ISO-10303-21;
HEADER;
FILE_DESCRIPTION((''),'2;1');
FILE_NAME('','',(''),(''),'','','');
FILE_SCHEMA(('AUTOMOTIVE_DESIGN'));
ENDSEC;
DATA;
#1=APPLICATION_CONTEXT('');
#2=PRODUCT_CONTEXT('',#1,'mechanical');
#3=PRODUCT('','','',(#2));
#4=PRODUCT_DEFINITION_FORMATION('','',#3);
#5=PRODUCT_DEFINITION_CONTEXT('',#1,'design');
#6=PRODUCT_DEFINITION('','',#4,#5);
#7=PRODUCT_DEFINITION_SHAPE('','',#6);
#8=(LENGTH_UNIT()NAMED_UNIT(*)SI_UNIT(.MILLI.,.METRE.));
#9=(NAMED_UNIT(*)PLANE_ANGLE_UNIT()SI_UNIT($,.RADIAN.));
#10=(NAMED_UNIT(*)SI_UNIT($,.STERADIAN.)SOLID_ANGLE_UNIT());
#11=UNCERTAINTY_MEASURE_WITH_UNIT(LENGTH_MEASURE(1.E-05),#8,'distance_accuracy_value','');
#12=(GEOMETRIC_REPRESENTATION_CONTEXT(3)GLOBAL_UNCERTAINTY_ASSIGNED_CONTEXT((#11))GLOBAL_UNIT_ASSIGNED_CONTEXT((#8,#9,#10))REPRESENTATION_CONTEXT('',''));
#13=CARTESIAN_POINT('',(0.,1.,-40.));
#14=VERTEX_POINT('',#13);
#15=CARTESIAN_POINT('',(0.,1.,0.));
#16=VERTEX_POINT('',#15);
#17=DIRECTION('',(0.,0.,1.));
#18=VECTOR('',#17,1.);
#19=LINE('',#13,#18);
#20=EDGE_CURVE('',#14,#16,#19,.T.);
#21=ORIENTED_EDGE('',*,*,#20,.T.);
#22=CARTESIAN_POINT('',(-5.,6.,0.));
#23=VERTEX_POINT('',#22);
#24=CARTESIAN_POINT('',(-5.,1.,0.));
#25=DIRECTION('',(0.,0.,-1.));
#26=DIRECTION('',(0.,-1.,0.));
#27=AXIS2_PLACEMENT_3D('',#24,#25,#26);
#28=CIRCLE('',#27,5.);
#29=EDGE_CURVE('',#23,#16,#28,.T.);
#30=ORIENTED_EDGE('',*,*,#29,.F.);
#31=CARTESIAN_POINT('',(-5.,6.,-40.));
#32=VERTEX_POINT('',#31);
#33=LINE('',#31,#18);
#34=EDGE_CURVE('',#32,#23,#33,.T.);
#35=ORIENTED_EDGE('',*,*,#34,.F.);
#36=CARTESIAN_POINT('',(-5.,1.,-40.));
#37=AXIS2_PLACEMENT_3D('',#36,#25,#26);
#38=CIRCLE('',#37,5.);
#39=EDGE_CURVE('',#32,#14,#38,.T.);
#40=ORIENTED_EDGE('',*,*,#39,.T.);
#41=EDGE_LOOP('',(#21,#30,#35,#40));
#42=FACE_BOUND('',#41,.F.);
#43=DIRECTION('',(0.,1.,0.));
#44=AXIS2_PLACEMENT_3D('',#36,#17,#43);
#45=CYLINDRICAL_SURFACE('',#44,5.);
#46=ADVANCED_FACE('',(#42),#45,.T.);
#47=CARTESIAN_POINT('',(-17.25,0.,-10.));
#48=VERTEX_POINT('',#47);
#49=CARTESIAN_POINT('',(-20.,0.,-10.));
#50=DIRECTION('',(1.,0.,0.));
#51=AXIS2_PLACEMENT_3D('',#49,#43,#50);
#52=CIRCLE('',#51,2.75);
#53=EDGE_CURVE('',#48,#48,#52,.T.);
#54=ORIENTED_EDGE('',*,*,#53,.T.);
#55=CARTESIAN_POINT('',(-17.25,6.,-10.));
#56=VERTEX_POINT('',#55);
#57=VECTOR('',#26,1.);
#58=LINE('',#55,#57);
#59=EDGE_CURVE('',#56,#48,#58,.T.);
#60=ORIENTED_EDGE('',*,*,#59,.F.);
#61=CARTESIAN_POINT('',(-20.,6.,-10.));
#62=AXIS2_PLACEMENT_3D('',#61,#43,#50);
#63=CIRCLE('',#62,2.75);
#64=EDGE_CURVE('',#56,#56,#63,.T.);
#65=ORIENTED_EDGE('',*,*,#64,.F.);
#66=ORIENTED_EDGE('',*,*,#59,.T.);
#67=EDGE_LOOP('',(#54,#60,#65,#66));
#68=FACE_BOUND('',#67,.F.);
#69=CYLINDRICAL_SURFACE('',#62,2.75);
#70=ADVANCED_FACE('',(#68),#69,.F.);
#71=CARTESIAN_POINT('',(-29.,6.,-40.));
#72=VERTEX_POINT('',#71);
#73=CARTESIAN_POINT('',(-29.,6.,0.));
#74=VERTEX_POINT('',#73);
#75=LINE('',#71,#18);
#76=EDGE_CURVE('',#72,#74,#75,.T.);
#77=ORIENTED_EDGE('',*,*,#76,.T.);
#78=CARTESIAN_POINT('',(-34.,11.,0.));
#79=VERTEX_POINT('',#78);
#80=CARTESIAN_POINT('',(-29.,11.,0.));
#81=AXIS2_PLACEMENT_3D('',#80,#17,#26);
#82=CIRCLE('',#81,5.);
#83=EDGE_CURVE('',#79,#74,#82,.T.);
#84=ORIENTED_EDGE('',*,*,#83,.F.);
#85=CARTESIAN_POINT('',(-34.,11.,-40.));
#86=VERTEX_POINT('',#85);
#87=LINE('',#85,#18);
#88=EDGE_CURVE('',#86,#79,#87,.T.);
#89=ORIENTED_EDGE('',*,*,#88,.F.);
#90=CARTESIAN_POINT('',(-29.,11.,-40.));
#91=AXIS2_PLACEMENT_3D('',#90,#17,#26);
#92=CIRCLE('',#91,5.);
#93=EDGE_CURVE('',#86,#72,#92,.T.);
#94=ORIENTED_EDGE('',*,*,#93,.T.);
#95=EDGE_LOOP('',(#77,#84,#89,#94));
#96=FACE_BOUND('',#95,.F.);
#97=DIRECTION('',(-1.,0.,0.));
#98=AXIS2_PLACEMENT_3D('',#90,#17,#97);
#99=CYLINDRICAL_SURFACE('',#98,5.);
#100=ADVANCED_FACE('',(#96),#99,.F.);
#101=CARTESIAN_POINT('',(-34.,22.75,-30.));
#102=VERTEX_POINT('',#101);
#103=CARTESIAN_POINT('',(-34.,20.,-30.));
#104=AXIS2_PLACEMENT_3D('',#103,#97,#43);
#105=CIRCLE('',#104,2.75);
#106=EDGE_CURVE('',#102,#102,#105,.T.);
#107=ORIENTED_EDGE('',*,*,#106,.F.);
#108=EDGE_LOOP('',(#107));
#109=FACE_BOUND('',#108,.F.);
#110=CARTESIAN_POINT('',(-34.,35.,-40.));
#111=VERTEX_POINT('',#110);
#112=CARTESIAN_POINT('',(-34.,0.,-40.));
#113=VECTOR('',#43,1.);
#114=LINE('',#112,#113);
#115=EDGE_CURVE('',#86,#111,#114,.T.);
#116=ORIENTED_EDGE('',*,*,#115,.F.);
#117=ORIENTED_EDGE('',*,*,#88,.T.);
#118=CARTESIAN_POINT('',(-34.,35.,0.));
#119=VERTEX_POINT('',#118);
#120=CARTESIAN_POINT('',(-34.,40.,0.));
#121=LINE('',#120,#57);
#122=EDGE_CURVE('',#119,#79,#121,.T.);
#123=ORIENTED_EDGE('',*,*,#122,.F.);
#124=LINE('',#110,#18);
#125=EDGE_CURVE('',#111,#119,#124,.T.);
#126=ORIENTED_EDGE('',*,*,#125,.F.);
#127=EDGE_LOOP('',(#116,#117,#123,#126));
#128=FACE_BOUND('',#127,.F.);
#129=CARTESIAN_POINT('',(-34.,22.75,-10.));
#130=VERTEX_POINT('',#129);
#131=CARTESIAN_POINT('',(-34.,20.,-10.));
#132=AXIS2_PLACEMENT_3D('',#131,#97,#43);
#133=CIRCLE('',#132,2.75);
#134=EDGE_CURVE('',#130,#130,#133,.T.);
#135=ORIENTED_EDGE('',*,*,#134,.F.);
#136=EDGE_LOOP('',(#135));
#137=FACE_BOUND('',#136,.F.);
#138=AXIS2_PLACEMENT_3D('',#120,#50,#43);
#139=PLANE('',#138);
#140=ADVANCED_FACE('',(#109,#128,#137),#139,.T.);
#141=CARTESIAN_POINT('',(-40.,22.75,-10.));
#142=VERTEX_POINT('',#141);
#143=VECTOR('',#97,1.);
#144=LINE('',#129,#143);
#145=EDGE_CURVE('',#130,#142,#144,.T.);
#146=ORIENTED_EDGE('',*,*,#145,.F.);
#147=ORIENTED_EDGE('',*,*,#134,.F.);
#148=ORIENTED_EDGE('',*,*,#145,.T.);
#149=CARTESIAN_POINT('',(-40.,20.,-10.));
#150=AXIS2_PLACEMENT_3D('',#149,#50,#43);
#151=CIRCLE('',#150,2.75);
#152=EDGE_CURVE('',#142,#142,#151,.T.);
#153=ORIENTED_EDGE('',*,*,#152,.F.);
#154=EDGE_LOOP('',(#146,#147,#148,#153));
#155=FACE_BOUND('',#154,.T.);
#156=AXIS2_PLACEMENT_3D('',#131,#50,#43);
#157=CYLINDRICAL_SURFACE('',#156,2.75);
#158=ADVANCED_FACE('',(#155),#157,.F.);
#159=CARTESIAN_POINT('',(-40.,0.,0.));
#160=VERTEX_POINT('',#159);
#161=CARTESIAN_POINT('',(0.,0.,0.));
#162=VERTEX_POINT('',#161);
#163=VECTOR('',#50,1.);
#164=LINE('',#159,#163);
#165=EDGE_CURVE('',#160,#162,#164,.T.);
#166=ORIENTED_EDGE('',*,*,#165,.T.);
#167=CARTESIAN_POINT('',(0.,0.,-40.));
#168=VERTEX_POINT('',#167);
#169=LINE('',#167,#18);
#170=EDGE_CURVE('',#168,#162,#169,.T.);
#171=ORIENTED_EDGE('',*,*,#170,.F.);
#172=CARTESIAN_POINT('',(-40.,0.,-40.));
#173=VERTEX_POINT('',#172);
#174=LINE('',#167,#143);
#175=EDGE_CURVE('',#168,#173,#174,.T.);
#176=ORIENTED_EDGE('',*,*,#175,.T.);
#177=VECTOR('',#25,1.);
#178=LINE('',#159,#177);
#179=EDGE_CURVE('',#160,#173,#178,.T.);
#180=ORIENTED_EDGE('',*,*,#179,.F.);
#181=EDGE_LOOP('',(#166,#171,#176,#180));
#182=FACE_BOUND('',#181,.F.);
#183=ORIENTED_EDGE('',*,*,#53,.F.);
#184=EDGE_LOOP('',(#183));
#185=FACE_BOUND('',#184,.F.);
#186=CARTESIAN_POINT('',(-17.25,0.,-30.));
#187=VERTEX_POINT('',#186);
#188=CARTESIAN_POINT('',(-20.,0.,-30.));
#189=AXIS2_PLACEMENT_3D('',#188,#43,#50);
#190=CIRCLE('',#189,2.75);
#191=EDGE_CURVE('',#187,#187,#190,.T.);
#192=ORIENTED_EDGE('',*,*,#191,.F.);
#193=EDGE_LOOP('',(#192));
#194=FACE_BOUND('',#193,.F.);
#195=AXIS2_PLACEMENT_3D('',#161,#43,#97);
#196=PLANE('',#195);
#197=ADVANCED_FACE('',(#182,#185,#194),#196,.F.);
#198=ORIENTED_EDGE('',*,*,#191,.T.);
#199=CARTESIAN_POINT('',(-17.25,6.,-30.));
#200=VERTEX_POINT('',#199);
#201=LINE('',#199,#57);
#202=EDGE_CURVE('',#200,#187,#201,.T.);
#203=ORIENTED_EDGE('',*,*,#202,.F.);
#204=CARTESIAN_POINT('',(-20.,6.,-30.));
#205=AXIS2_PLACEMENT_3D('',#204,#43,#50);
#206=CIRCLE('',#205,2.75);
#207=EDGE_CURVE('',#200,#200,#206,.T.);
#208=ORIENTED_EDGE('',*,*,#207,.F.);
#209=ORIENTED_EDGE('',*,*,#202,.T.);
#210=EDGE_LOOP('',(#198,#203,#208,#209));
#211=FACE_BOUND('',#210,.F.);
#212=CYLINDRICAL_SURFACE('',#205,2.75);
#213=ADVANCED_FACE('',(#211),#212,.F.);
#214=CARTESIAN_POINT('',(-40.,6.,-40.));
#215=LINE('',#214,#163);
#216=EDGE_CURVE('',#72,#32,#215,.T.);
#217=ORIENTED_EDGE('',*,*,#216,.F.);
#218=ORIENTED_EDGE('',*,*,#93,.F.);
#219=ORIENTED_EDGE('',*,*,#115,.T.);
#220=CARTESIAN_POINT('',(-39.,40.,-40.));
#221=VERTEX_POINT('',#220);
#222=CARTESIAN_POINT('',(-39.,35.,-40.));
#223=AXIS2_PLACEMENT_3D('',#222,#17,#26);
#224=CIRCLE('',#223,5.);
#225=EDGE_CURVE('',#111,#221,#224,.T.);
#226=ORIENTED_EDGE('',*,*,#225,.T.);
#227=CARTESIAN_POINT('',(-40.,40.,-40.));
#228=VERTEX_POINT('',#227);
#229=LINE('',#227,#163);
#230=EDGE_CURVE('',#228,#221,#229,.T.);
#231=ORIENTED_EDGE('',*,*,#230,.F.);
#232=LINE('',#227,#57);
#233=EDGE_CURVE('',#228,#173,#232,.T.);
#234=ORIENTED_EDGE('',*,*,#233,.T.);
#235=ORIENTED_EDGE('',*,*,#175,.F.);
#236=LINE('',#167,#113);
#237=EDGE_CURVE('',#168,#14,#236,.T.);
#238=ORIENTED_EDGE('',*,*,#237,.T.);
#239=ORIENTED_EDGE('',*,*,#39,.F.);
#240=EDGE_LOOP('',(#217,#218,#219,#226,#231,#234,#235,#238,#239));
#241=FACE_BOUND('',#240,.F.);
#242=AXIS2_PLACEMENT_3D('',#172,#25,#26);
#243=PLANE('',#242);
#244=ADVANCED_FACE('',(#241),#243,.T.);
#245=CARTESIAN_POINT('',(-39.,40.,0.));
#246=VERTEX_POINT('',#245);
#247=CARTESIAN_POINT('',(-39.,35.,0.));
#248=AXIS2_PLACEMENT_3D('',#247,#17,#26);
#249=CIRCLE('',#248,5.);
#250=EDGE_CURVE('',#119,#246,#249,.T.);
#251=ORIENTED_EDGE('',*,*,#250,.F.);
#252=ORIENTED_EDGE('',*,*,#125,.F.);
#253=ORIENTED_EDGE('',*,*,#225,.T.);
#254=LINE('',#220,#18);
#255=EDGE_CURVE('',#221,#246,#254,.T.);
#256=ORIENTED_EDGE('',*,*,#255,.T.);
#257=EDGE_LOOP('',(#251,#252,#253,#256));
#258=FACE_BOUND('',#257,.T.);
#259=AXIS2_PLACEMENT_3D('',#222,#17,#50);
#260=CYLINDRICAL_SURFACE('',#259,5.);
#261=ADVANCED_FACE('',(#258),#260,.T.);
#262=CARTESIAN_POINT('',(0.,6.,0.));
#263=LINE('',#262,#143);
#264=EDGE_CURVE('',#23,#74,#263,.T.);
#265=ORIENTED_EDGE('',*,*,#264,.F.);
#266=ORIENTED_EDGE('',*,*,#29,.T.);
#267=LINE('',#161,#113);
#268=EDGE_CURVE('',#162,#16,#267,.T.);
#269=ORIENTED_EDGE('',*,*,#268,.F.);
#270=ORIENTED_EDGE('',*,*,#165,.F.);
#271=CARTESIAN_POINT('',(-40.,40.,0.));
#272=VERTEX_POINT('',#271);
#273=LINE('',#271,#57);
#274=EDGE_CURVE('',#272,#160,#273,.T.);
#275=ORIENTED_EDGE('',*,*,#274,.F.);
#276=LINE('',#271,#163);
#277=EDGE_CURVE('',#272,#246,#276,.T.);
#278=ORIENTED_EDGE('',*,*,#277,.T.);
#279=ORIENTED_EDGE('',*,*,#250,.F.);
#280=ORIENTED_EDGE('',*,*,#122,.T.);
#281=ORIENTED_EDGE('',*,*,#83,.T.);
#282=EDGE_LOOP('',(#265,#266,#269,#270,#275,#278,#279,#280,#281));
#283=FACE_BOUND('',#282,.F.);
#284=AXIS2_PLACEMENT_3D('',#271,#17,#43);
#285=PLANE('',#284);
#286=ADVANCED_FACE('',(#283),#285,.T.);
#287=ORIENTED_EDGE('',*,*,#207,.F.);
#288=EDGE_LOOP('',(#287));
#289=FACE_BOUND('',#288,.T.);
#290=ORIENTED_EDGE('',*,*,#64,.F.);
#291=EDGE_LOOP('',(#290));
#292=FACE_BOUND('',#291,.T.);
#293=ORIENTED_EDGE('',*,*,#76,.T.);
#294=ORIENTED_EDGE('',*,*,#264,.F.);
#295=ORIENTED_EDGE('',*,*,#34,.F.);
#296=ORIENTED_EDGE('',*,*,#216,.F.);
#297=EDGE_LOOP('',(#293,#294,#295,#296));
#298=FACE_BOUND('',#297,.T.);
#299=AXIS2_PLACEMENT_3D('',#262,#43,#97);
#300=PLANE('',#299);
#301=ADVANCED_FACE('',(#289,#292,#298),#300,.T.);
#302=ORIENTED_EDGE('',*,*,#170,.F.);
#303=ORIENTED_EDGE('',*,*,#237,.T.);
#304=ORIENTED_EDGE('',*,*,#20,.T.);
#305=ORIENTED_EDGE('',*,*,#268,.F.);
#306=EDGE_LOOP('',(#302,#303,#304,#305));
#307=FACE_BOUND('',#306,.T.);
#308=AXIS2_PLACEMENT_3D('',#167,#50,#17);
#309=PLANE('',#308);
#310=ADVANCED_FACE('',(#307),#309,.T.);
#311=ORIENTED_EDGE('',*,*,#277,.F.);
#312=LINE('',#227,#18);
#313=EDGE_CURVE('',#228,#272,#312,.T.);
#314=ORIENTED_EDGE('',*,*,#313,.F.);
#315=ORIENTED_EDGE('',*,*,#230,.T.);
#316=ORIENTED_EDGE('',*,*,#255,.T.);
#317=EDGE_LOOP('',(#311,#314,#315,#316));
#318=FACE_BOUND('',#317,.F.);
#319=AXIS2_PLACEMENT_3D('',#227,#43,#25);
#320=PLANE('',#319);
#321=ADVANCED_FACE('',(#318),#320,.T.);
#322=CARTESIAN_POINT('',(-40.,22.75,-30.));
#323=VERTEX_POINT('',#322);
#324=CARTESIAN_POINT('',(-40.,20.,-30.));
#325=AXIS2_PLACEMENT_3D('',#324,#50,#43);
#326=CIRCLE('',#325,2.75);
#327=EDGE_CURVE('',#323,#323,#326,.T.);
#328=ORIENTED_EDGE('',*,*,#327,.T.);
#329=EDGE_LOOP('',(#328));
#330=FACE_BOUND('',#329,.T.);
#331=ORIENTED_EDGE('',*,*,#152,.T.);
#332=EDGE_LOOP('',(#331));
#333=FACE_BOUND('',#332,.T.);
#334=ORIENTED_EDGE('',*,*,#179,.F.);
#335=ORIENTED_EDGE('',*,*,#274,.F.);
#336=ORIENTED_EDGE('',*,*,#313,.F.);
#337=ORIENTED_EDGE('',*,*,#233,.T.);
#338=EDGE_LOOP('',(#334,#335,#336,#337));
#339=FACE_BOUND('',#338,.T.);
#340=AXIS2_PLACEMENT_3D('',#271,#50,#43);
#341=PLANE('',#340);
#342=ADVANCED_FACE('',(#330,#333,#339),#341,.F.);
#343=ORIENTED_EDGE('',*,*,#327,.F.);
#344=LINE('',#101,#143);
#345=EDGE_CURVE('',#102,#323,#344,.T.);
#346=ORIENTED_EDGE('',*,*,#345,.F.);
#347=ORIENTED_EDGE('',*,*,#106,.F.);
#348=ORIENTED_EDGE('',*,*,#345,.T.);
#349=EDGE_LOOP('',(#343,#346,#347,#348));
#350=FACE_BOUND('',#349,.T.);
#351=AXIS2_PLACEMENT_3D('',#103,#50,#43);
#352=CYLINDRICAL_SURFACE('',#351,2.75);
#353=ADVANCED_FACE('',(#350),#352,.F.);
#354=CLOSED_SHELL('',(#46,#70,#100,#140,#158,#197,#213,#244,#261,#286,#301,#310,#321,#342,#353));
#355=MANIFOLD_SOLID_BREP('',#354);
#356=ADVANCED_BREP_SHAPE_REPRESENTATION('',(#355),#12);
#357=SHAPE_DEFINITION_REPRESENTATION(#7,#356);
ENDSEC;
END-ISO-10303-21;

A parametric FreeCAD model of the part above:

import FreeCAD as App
import Part
import Sketcher


def edges_at(feature, points):
    """Names of the edges that pass closest to the given points."""
    edges = feature.Shape.Edges
    near = lambda p: min(range(len(edges)), key=lambda i: edges[i].distToShape(Part.Vertex(*p))[0])
    return sorted({f"Edge{near(p) + 1}" for p in points})

doc = App.newDocument("Part")
body = doc.addObject("PartDesign::Body", "Body")

# Sketch on XZ plane
sketch1 = body.newObject("Sketcher::SketchObject", "Sketch")
sketch1.AttachmentSupport = (doc.getObject("XZ_Plane"), [""])
sketch1.MapMode = "FlatFace"
sketch1.addGeometry([
    Part.LineSegment(App.Vector(-40, 0, 0), App.Vector(0, 0, 0)),
    Part.LineSegment(App.Vector(0, 0, 0), App.Vector(0, -40, 0)),
    Part.LineSegment(App.Vector(0, -40, 0), App.Vector(-40, -40, 0)),
    Part.LineSegment(App.Vector(-40, -40, 0), App.Vector(-40, 0, 0)),
], False)
sketch1.addConstraint([
    Sketcher.Constraint("Coincident", 0, 2, 1, 1),
    Sketcher.Constraint("Coincident", 1, 2, 2, 1),
    Sketcher.Constraint("Coincident", 2, 2, 3, 1),
    Sketcher.Constraint("Coincident", 3, 2, 0, 1),
    Sketcher.Constraint("Horizontal", 0),
    Sketcher.Constraint("Vertical", 1),
    Sketcher.Constraint("Horizontal", 2),
    Sketcher.Constraint("Vertical", 3),
    Sketcher.Constraint("Coincident", 0, 2, -1, 1),
    Sketcher.Constraint("Equal", 2, 1),
    Sketcher.Constraint("DistanceX", 0, 1, 0, 2, 40.0),
])
pad1 = body.newObject("PartDesign::Pad", "Pad")
pad1.Profile = sketch1
pad1.Length = 6
pad1.Reversed = True
doc.recompute()

fillet = body.newObject("PartDesign::Fillet", "Fillet")
fillet.Base = (pad1, edges_at(pad1, [(-40, 0, -20)]))
fillet.Radius = 5
doc.recompute()

fillet2 = body.newObject("PartDesign::Fillet", "Fillet001")
fillet2.Base = (fillet, edges_at(fillet, [(0, 6, -20)]))
fillet2.Radius = 5
doc.recompute()

datumplane = body.newObject("PartDesign::Plane", "DatumPlane")
datumplane.Placement = App.Placement(App.Vector(-20, 20, 0), App.Rotation(App.Vector(0.707106781, 0.707106781, 0), App.Vector(0, 0, -1), App.Vector(-0.707106781, 0.707106781, 0), "ZXY"))
mirrored = body.newObject("PartDesign::Mirrored", "Mirrored")
mirrored.Originals = [pad1, fillet2]
mirrored.MirrorPlane = (datumplane, [""])
body.Tip = mirrored
doc.recompute()

fillet3 = body.newObject("PartDesign::Fillet", "Fillet002")
fillet3.Base = (mirrored, edges_at(mirrored, [(-34, 6, -20)]))
fillet3.Radius = 5

# Sketch on XZ plane
sketch2 = body.newObject("Sketcher::SketchObject", "Sketch001")
sketch2.AttachmentSupport = (doc.getObject("XZ_Plane"), [""])
sketch2.MapMode = "FlatFace"
sketch2.AttachmentOffset = App.Placement(App.Vector(0, 0, -6), App.Rotation())
sketch2.addGeometry([
    Part.Circle(App.Vector(-20, -10, 0), App.Vector(0, 0, 1), 2.75),
    Part.Circle(App.Vector(-20, -30, 0), App.Vector(0, 0, 1), 2.75),
], False)
sketch2.addConstraint([
    Sketcher.Constraint("Equal", 0, 1),
    Sketcher.Constraint("Vertical", 0, 3, 1, 3),
    Sketcher.Constraint("Diameter", 0, 5.5),
    Sketcher.Constraint("DistanceX", 0, 3, -1, 1, 20.0),
    Sketcher.Constraint("DistanceY", 0, 3, -1, 1, 10.0),
    Sketcher.Constraint("DistanceY", 1, 3, -1, 1, 30.0),
])
pocket1 = body.newObject("PartDesign::Pocket", "Pocket")
pocket1.Profile = sketch2
pocket1.Length = 10
pocket1.Reversed = True
doc.recompute()

datumplane2 = body.newObject("PartDesign::Plane", "DatumPlane001")
datumplane2.Placement = App.Placement(App.Vector(-20, 20, 0), App.Rotation(App.Vector(0.707106781, 0.707106781, 0), App.Vector(0, 0, -1), App.Vector(-0.707106781, 0.707106781, 0), "ZXY"))
mirrored2 = body.newObject("PartDesign::Mirrored", "Mirrored001")
mirrored2.Originals = [pocket1]
mirrored2.MirrorPlane = (datumplane2, [""])
body.Tip = mirrored2

doc.recompute()
